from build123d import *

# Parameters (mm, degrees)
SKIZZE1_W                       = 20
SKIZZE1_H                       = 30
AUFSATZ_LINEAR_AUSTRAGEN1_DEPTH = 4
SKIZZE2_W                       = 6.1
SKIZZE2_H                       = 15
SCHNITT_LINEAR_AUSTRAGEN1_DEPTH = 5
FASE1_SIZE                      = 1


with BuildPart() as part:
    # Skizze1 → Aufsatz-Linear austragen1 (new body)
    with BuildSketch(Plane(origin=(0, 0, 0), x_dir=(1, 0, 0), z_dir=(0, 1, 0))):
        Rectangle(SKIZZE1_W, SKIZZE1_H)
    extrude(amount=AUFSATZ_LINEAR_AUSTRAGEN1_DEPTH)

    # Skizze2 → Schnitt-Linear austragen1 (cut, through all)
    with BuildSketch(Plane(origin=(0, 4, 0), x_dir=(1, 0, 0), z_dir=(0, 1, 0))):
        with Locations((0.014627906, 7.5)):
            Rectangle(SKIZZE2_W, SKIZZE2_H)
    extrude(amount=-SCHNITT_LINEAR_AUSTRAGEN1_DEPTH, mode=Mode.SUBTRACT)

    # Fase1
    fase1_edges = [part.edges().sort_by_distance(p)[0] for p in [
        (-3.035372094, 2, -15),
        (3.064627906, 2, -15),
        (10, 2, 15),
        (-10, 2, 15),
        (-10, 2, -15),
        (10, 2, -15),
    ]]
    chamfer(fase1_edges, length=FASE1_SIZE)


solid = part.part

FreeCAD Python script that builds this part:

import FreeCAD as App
import Part
import Sketcher
from FreeCAD import Vector


def edges_at(feature, points):
    """Names of the edges that pass closest to the given points."""
    edges = feature.Shape.Edges
    near = lambda p: min(range(len(edges)), key=lambda i: edges[i].distToShape(Part.Vertex(*p))[0])
    return sorted({f"Edge{near(p) + 1}" for p in points})

doc = App.newDocument("Part")
body = doc.addObject("PartDesign::Body", "Body")

sketch1 = doc.addObject("Sketcher::SketchObject", "Sketch")
body.addObject(sketch1)
sketch1.AttachmentSupport = (doc.XZ_Plane, [""])
sketch1.MapMode = "FlatFace"
sketch1.addGeometry(Part.LineSegment(Vector(-10, -15, 0), Vector(-10, 15, 0)), False)
sketch1.addGeometry(Part.LineSegment(Vector(-10, 15, 0), Vector(10, 15, 0)), False)
sketch1.addGeometry(Part.LineSegment(Vector(10, 15, 0), Vector(10, -15, 0)), False)
sketch1.addGeometry(Part.LineSegment(Vector(10, -15, 0), Vector(-10, -15, 0)), False)
sketch1.addConstraint(Sketcher.Constraint("Coincident", 0, 2, 1, 1))
sketch1.addConstraint(Sketcher.Constraint("Coincident", 1, 2, 2, 1))
sketch1.addConstraint(Sketcher.Constraint("Coincident", 2, 2, 3, 1))
sketch1.addConstraint(Sketcher.Constraint("Coincident", 3, 2, 0, 1))
sketch1.addConstraint(Sketcher.Constraint("Vertical", 0))
sketch1.addConstraint(Sketcher.Constraint("Horizontal", 1))
sketch1.addConstraint(Sketcher.Constraint("Vertical", 2))
sketch1.addConstraint(Sketcher.Constraint("Horizontal", 3))
sketch1.addConstraint(Sketcher.Constraint("Symmetric", 0, 2, 2, 2, -1, 1))
sketch1.addConstraint(Sketcher.Constraint("DistanceX", 1, 1, 1, 2, 20.0))
sketch1.addConstraint(Sketcher.Constraint("DistanceY", 0, 1, 0, 2, 30.0))
pad1 = doc.addObject("PartDesign::Pad", "Pad")
body.addObject(pad1)
pad1.Profile = sketch1
pad1.Length = 4
pad1.Reversed = True

sketch2 = doc.addObject("Sketcher::SketchObject", "Sketch001")
body.addObject(sketch2)
sketch2.AttachmentSupport = (doc.XZ_Plane, [""])
sketch2.MapMode = "FlatFace"
sketch2.AttachmentOffset = App.Placement(Vector(0, 0, -4), App.Rotation())
sketch2.addGeometry(Part.LineSegment(Vector(-3, -15, 0), Vector(-3, 0, 0)), False)
sketch2.addGeometry(Part.LineSegment(Vector(-3, 0, 0), Vector(3, 0, 0)), False)
sketch2.addGeometry(Part.LineSegment(Vector(3, 0, 0), Vector(3, -15, 0)), False)
sketch2.addGeometry(Part.LineSegment(Vector(3, -15, 0), Vector(-3, -15, 0)), False)
sketch2.addConstraint(Sketcher.Constraint("Coincident", 0, 2, 1, 1))
sketch2.addConstraint(Sketcher.Constraint("Coincident", 1, 2, 2, 1))
sketch2.addConstraint(Sketcher.Constraint("Coincident", 2, 2, 3, 1))
sketch2.addConstraint(Sketcher.Constraint("Coincident", 3, 2, 0, 1))
sketch2.addConstraint(Sketcher.Constraint("Vertical", 0))
sketch2.addConstraint(Sketcher.Constraint("Horizontal", 1))
sketch2.addConstraint(Sketcher.Constraint("Vertical", 2))
sketch2.addConstraint(Sketcher.Constraint("Horizontal", 3))
sketch2.addConstraint(Sketcher.Constraint("PointOnObject", 0, 2, -1))
sketch2.addConstraint(Sketcher.Constraint("DistanceY", 0, 1, 0, 2, 15.0))
sketch2.addConstraint(Sketcher.Constraint("DistanceX", 1, 1, 1, 2, 6.1))
sketch2.addConstraint(Sketcher.Constraint("DistanceX", 0, 2, -1, 1, 3.035372))
pocket1 = doc.addObject("PartDesign::Pocket", "Pocket")
body.addObject(pocket1)
pocket1.Profile = sketch2
pocket1.Type = "ThroughAll"
pocket1.Reversed = True
doc.recompute()

chamfer = doc.addObject("PartDesign::Chamfer", "Chamfer")
body.addObject(chamfer)
chamfer.Base = (pocket1, edges_at(pocket1, [
    (-3.035, 2, -15),
    (3.065, 2, -15),
    (10, 2, 15),
    (-10, 2, 15),
    (-10, 2, -15),
    (10, 2, -15),
]))
chamfer.Size = 1

doc.recompute()
